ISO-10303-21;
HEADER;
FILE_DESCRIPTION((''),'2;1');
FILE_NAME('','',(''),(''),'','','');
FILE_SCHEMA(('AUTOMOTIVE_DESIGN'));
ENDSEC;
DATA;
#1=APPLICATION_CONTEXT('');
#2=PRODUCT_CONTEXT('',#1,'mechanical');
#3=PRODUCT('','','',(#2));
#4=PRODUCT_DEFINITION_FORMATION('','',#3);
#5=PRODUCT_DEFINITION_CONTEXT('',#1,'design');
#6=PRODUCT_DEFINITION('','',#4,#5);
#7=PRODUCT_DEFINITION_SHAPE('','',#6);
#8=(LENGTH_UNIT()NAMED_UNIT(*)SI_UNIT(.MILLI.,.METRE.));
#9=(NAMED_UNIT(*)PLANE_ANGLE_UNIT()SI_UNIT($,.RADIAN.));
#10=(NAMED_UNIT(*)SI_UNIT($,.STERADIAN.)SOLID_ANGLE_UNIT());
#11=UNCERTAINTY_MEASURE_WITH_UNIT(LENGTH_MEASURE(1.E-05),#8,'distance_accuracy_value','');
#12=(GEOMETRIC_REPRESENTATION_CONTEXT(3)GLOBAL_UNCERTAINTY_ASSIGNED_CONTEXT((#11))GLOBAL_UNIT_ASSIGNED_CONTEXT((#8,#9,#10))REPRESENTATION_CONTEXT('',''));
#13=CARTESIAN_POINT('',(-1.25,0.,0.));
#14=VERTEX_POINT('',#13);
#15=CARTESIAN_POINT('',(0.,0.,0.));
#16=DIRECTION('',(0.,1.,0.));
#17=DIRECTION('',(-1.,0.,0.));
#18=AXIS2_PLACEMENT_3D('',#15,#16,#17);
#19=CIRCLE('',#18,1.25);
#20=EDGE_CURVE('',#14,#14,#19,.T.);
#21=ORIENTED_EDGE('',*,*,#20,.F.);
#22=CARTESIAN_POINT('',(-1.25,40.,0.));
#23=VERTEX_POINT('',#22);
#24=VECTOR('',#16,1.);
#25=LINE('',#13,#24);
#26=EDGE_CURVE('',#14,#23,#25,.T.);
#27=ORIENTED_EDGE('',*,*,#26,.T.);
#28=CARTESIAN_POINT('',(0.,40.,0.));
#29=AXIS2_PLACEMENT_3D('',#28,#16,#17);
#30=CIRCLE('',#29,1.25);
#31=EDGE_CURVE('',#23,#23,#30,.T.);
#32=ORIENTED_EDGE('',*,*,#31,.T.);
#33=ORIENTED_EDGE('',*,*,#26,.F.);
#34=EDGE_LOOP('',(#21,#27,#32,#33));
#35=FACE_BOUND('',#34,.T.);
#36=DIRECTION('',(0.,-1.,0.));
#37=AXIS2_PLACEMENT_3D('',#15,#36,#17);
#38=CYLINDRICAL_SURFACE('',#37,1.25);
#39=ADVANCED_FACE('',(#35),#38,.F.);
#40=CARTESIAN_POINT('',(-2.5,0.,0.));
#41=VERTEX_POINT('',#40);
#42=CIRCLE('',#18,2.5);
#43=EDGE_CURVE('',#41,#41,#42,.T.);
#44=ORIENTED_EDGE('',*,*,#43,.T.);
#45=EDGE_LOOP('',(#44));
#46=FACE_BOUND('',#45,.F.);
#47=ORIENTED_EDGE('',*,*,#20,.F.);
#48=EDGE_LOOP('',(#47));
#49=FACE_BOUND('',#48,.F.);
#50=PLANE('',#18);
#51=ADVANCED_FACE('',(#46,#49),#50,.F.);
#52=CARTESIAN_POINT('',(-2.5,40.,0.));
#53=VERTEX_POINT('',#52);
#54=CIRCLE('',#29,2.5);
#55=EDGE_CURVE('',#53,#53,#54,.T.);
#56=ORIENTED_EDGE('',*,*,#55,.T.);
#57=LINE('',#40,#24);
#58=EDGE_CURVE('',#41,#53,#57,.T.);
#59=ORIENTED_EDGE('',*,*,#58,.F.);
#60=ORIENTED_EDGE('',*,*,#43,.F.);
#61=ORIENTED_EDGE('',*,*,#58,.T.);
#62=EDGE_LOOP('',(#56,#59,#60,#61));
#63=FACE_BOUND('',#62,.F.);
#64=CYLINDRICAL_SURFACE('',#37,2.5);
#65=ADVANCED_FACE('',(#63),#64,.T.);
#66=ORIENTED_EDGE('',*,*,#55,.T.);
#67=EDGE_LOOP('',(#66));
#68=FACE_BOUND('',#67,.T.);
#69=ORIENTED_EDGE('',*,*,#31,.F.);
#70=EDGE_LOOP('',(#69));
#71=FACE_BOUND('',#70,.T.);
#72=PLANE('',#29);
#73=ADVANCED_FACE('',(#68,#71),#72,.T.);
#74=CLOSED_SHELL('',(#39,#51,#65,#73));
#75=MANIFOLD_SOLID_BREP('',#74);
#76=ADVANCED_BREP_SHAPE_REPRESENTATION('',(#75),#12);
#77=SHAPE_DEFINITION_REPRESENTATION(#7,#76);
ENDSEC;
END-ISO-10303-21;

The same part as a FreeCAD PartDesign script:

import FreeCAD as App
import Part
import Sketcher

V = App.Vector
Q = App.Units.Quantity

doc = App.newDocument("Part")
body = doc.addObject("PartDesign::Body", "Body")

# Sketch on XZ plane
sketch1 = doc.addObject("Sketcher::SketchObject", "Sketch")
body.addObject(sketch1)
sketch1.AttachmentSupport = (doc.XZ_Plane, [""])
sketch1.MapMode = "FlatFace"
sketch1.addGeometry([
    Part.Circle(V(0, 0, 0), V(0, 0, 1), 2.5),
    Part.Circle(V(0, 0, 0), V(0, 0, 1), 1.25),
], False)
sketch1.addConstraint([
    Sketcher.Constraint("Coincident", 0, 3, -1, 1),
    Sketcher.Constraint("Coincident", 1, 3, -1, 1),
    Sketcher.Constraint("Diameter", 0, Q("5 mm")),
    Sketcher.Constraint("Diameter", 1, Q("2.5 mm")),
])
pad1 = doc.addObject("PartDesign::Pad", "Pad")
body.addObject(pad1)
pad1.Profile = sketch1
pad1.Length = 40
pad1.Reversed = True

doc.recompute()
